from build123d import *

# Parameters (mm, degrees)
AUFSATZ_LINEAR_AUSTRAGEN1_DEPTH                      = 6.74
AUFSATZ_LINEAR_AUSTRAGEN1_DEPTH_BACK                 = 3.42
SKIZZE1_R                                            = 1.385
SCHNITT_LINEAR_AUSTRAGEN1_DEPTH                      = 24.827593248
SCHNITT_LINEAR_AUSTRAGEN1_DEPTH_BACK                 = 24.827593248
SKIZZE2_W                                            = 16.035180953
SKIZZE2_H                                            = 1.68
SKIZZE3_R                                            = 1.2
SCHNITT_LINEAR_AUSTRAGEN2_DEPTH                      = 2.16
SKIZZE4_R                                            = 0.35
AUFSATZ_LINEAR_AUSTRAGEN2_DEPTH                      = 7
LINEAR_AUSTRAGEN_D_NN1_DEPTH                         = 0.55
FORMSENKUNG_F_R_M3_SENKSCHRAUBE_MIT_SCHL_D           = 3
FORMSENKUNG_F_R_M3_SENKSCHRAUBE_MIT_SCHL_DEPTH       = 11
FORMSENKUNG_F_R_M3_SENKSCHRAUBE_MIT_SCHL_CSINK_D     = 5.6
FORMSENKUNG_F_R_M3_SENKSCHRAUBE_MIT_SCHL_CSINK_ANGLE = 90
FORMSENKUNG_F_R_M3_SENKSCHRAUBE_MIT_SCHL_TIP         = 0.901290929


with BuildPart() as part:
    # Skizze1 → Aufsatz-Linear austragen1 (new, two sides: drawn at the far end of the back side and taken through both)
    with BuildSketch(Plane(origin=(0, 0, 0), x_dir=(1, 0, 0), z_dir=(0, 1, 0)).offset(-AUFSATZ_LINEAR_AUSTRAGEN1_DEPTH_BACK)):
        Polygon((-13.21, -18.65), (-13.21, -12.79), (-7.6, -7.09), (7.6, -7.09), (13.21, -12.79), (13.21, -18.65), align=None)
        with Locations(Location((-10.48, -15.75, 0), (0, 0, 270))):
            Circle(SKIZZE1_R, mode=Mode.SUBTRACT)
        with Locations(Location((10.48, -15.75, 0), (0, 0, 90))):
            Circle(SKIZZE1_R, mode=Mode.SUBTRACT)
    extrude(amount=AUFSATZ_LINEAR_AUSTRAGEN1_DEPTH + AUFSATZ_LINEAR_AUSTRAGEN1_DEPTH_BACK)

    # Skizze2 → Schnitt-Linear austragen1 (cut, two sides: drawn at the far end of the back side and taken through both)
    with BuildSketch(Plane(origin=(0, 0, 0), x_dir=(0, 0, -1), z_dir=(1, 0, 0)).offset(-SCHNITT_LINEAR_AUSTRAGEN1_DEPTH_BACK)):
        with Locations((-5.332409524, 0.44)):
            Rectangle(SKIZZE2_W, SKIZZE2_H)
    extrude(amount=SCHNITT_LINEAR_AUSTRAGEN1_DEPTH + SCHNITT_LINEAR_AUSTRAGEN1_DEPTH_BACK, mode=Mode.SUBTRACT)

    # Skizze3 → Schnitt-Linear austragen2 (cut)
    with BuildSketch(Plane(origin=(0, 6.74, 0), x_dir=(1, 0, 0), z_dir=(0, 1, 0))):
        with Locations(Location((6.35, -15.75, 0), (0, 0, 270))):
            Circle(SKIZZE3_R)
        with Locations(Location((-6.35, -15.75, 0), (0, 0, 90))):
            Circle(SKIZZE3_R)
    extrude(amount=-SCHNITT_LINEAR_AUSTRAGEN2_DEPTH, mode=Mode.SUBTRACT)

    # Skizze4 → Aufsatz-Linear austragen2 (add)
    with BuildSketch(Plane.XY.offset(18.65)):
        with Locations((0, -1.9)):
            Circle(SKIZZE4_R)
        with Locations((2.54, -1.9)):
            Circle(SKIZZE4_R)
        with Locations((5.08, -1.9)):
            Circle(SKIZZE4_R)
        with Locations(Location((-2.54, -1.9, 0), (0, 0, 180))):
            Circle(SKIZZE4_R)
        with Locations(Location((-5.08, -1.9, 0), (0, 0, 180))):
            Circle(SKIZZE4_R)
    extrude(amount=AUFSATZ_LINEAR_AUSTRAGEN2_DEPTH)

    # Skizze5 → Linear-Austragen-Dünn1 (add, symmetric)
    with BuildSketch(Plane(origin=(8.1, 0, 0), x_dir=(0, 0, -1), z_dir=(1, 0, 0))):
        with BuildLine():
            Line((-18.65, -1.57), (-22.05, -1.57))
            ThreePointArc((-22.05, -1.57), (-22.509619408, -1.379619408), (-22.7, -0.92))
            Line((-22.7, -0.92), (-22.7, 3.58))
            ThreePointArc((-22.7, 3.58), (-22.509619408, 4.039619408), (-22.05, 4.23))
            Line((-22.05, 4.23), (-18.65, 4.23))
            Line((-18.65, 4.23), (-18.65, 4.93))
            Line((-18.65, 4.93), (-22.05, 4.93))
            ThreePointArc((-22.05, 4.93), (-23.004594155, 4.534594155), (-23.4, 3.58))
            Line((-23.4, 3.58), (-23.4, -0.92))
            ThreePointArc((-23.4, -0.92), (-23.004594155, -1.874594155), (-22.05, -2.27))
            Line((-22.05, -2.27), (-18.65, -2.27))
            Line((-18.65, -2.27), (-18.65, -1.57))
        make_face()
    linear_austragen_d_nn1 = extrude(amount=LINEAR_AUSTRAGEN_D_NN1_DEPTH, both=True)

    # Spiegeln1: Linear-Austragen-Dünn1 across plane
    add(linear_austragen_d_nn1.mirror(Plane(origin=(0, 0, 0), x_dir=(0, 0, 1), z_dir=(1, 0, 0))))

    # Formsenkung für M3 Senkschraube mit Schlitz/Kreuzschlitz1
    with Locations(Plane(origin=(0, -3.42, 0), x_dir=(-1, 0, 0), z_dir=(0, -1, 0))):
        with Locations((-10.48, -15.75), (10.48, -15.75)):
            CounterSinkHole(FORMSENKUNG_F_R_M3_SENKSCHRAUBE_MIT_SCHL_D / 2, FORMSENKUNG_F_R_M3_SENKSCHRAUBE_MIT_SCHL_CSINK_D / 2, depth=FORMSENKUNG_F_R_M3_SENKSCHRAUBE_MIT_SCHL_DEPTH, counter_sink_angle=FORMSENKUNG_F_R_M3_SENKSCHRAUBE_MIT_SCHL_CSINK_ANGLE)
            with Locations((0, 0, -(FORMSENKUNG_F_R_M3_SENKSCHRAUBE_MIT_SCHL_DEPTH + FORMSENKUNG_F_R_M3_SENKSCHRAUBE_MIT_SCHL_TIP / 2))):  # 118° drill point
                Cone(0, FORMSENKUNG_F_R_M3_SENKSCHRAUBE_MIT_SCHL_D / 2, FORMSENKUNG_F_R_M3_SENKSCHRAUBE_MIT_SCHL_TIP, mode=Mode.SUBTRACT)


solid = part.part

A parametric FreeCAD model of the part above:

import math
import FreeCAD as App
import Part
import Sketcher
from FreeCAD import Vector


def add_polygon(sketch, points):
    """Adds a closed chain of lines whose ends are joined by coincident constraints."""
    first, n = sketch.GeometryCount, len(points)
    for a, b in zip(points, points[1:] + points[:1]):
        sketch.addGeometry(Part.LineSegment(App.Vector(*a, 0), App.Vector(*b, 0)), False)
    for i in range(n):
        sketch.addConstraint(Sketcher.Constraint("Coincident", first + i, 2, first + (i + 1) % n, 1))

doc = App.newDocument("Part")
body = doc.addObject("PartDesign::Body", "Body")

sketch1 = body.newObject("Sketcher::SketchObject", "Sketch")
sketch1.AttachmentSupport = (doc.getObject("XZ_Plane"), [""])
sketch1.MapMode = "FlatFace"
add_polygon(sketch1, [(-13.21, 12.79), (-13.21, 18.65), (13.21, 18.65), (13.21, 12.79), (7.6, 7.09), (-7.6, 7.09)])
sketch1.addGeometry(Part.Circle(Vector(10.48, 15.75, 0), Vector(0, 0, 1), 1.385), False)
sketch1.addGeometry(Part.Circle(Vector(-10.48, 15.75, 0), Vector(0, 0, 1), 1.385), False)
sketch1.addConstraint([
    Sketcher.Constraint("Vertical", 0),
    Sketcher.Constraint("Horizontal", 1),
    Sketcher.Constraint("Vertical", 2),
    Sketcher.Constraint("Horizontal", 4),
    Sketcher.Constraint("Equal", 6, 7),
    Sketcher.Constraint("Symmetric", 6, 3, 7, 3, -2),
    Sketcher.Constraint("Symmetric", 2, 2, 5, 2, -2),
    Sketcher.Constraint("Equal", 3, 5),
    Sketcher.Constraint("Diameter", 6, 2.77),
    Sketcher.Constraint("DistanceX", 4, 2, 4, 1, 15.2),
    Sketcher.Constraint("DistanceX", 1, 1, 1, 2, 26.42),
    Sketcher.Constraint("DistanceY", 0, 1, 0, 2, 5.86),
    Sketcher.Constraint("DistanceY", 7, 3, 0, 2, 2.9),
    Sketcher.Constraint("DistanceY", 3, 2, 2, 2, 5.7),
    Sketcher.Constraint("DistanceX", -1, 1, 6, 3, 10.48),
    Sketcher.Constraint("DistanceY", -1, 1, 6, 3, 15.75),
])
pad1 = body.newObject("PartDesign::Pad", "Pad")
pad1.Profile = sketch1
pad1.Type = "TwoLengths"
pad1.Length = 6.74
pad1.Length2 = 3.42
pad1.Reversed = True

sketch2 = body.newObject("Sketcher::SketchObject", "Sketch001")
sketch2.AttachmentSupport = (doc.getObject("YZ_Plane"), [""])
sketch2.MapMode = "FlatFace"
add_polygon(sketch2, [(1.28, 13.35), (-0.4, 13.35), (-0.4, -2.685181), (1.28, -2.685181)])
sketch2.addConstraint([
    Sketcher.Constraint("Horizontal", 0),
    Sketcher.Constraint("Vertical", 1),
    Sketcher.Constraint("Horizontal", 2),
    Sketcher.Constraint("Vertical", 3),
    Sketcher.Constraint("DistanceX", 0, 2, 0, 1, 1.68),
    Sketcher.Constraint("DistanceX", 0, 2, -1, 1, 0.4),
    Sketcher.Constraint("DistanceY", -1, 1, 0, 2, 13.35),
    Sketcher.Constraint("DistanceY", 1, 2, 1, 1, 16.035181),
])
pocket1 = body.newObject("PartDesign::Pocket", "Pocket")
pocket1.Profile = sketch2
pocket1.Type = "ThroughAll"
pocket1.Midplane = True

sketch3 = body.newObject("Sketcher::SketchObject", "Sketch002")
sketch3.AttachmentSupport = (doc.getObject("XZ_Plane"), [""])
sketch3.MapMode = "FlatFace"
sketch3.AttachmentOffset = App.Placement(Vector(0, 0, -6.74), App.Rotation())
sketch3.addGeometry([
    Part.Circle(Vector(6.35, 15.75, 0), Vector(0, 0, 1), 1.2),
    Part.Circle(Vector(-6.35, 15.75, 0), Vector(0, 0, 1), 1.2),
], False)
sketch3.addConstraint([
    Sketcher.Constraint("Equal", 0, 1),
    Sketcher.Constraint("Symmetric", 0, 3, 1, 3, -2),
    Sketcher.Constraint("Diameter", 0, 2.4),
    Sketcher.Constraint("DistanceX", 1, 3, 0, 3, 12.7),
    Sketcher.Constraint("DistanceY", -1, 1, 0, 3, 15.75),
])
pocket2 = body.newObject("PartDesign::Pocket", "Pocket001")
pocket2.Profile = sketch3
pocket2.Length = 2.16
pocket2.Reversed = True

sketch4 = body.newObject("Sketcher::SketchObject", "Sketch003")
sketch4.AttachmentSupport = (doc.getObject("XY_Plane"), [""])
sketch4.MapMode = "FlatFace"
sketch4.AttachmentOffset = App.Placement(Vector(0, 0, 18.65), App.Rotation())
sketch4.addGeometry([
    Part.Circle(Vector(0, -1.9, 0), Vector(0, 0, 1), 0.35),
    Part.Circle(Vector(2.54, -1.9, 0), Vector(0, 0, 1), 0.35),
    Part.Circle(Vector(5.08, -1.9, 0), Vector(0, 0, 1), 0.35),
    Part.Circle(Vector(-2.54, -1.9, 0), Vector(0, 0, 1), 0.35),
    Part.Circle(Vector(-5.08, -1.9, 0), Vector(0, 0, 1), 0.35),
], False)
sketch4.addConstraint([
    Sketcher.Constraint("Equal", 0, 1),
    Sketcher.Constraint("Equal", 1, 2),
    Sketcher.Constraint("Equal", 2, 3),
    Sketcher.Constraint("Equal", 3, 4),
    Sketcher.Constraint("Symmetric", 1, 3, 3, 3, -2),
    Sketcher.Constraint("Symmetric", 2, 3, 4, 3, -2),
    Sketcher.Constraint("PointOnObject", 0, 3, -2),
    Sketcher.Constraint("Horizontal", 0, 3, 1, 3),
    Sketcher.Constraint("Horizontal", 1, 3, 2, 3),
    Sketcher.Constraint("Diameter", 0, 0.7),
    Sketcher.Constraint("DistanceY", 0, 3, -1, 1, 1.9),
    Sketcher.Constraint("DistanceX", -1, 1, 1, 3, 2.54),
    Sketcher.Constraint("DistanceX", -1, 1, 2, 3, 5.08),
])
pad2 = body.newObject("PartDesign::Pad", "Pad001")
pad2.Profile = sketch4
pad2.Length = 7

sketch5 = body.newObject("Sketcher::SketchObject", "Sketch004")
sketch5.AttachmentSupport = (doc.getObject("YZ_Plane"), [""])
sketch5.MapMode = "FlatFace"
sketch5.AttachmentOffset = App.Placement(Vector(0, 0, 8.1), App.Rotation())
sketch5.addGeometry([
    Part.LineSegment(Vector(-1.57, 18.65, 0), Vector(-1.57, 22.05, 0)),
    Part.ArcOfCircle(Part.Circle(Vector(-0.92, 22.05, 0), Vector(0, 0, 1), 0.65), math.radians(90), math.radians(180)),
    Part.LineSegment(Vector(-0.92, 22.7, 0), Vector(3.58, 22.7, 0)),
    Part.ArcOfCircle(Part.Circle(Vector(3.58, 22.05, 0), Vector(0, 0, 1), 0.65), math.radians(0), math.radians(90)),
    Part.LineSegment(Vector(4.23, 22.05, 0), Vector(4.23, 18.65, 0)),
    Part.LineSegment(Vector(4.23, 18.65, 0), Vector(4.93, 18.65, 0)),
    Part.LineSegment(Vector(4.93, 18.65, 0), Vector(4.93, 22.05, 0)),
    Part.ArcOfCircle(Part.Circle(Vector(3.58, 22.05, 0), Vector(0, 0, 1), 1.35), math.radians(0), math.radians(90)),
    Part.LineSegment(Vector(3.58, 23.4, 0), Vector(-0.92, 23.4, 0)),
    Part.ArcOfCircle(Part.Circle(Vector(-0.92, 22.05, 0), Vector(0, 0, 1), 1.35), math.radians(90), math.radians(180)),
    Part.LineSegment(Vector(-2.27, 22.05, 0), Vector(-2.27, 18.65, 0)),
    Part.LineSegment(Vector(-2.27, 18.65, 0), Vector(-1.57, 18.65, 0)),
], False)
sketch5.addConstraint([
    Sketcher.Constraint("Tangent", 0, 2, 1, 2),
    Sketcher.Constraint("Tangent", 1, 1, 2, 1),
    Sketcher.Constraint("Tangent", 2, 2, 3, 2),
    Sketcher.Constraint("Tangent", 3, 1, 4, 1),
    Sketcher.Constraint("Coincident", 4, 2, 5, 1),
    Sketcher.Constraint("Coincident", 5, 2, 6, 1),
    Sketcher.Constraint("Tangent", 6, 2, 7, 1),
    Sketcher.Constraint("Tangent", 7, 2, 8, 1),
    Sketcher.Constraint("Tangent", 8, 2, 9, 1),
    Sketcher.Constraint("Tangent", 9, 2, 10, 1),
    Sketcher.Constraint("Coincident", 10, 2, 11, 1),
    Sketcher.Constraint("Coincident", 11, 2, 0, 1),
    Sketcher.Constraint("Vertical", 0),
    Sketcher.Constraint("Horizontal", 2),
    Sketcher.Constraint("Vertical", 4),
    Sketcher.Constraint("Horizontal", 5),
    Sketcher.Constraint("Vertical", 6),
    Sketcher.Constraint("Horizontal", 8),
    Sketcher.Constraint("Vertical", 10),
    Sketcher.Constraint("Horizontal", 11),
    Sketcher.Constraint("Coincident", 7, 3, 3, 3),
    Sketcher.Constraint("Coincident", 9, 3, 1, 3),
    Sketcher.Constraint("Equal", 1, 3),
    Sketcher.Constraint("Horizontal", 5, 2, 10, 2),
    Sketcher.Constraint("Radius", 1, 0.65),
    Sketcher.Constraint("Radius", 7, 1.35),
    Sketcher.Constraint("DistanceX", 2, 1, 2, 2, 4.5),
    Sketcher.Constraint("DistanceY", 0, 1, 0, 2, 3.4),
    Sketcher.Constraint("DistanceY", -1, 1, 1, 1, 22.7),
    Sketcher.Constraint("DistanceX", 1, 3, -1, 1, 0.92),
])
pad3 = body.newObject("PartDesign::Pad", "Pad002")
pad3.Profile = sketch5
pad3.Length = 1.1
pad3.Midplane = True
doc.recompute()

mirrored = body.newObject("PartDesign::Mirrored", "Mirrored")
mirrored.Originals = [pad3]
mirrored.MirrorPlane = (doc.getObject("YZ_Plane"), [""])
body.Tip = mirrored

sketch6 = body.newObject("Sketcher::SketchObject", "Sketch005")
sketch6.AttachmentSupport = (doc.getObject("XZ_Plane"), [""])
sketch6.MapMode = "FlatFace"
sketch6.AttachmentOffset = App.Placement(Vector(0, 0, 3.42), App.Rotation())
sketch6.addGeometry([
    Part.Circle(Vector(10.48, 15.75, 0), Vector(0, 0, 1), 1.5),
    Part.Circle(Vector(-10.48, 15.75, 0), Vector(0, 0, 1), 1.5),
], False)
sketch6.addConstraint([
    Sketcher.Constraint("Equal", 0, 1),
    Sketcher.Constraint("Symmetric", 0, 3, 1, 3, -2),
    Sketcher.Constraint("Diameter", 0, 3.0),
    Sketcher.Constraint("DistanceX", -1, 1, 0, 3, 10.48),
    Sketcher.Constraint("DistanceY", -1, 1, 0, 3, 15.75),
])
doc.recompute()
hole = body.newObject("PartDesign::Hole", "Hole")
hole.Profile = sketch6
hole.ThreadType = "None"
hole.Diameter = 3
hole.DepthType = "Dimension"
hole.Depth = 11
hole.DrillPoint = "Angled"
hole.DrillPointAngle = 118
hole.HoleCutType = "Countersink"
hole.HoleCutDiameter = 5.6
hole.HoleCutCountersinkAngle = 90

doc.recompute()
